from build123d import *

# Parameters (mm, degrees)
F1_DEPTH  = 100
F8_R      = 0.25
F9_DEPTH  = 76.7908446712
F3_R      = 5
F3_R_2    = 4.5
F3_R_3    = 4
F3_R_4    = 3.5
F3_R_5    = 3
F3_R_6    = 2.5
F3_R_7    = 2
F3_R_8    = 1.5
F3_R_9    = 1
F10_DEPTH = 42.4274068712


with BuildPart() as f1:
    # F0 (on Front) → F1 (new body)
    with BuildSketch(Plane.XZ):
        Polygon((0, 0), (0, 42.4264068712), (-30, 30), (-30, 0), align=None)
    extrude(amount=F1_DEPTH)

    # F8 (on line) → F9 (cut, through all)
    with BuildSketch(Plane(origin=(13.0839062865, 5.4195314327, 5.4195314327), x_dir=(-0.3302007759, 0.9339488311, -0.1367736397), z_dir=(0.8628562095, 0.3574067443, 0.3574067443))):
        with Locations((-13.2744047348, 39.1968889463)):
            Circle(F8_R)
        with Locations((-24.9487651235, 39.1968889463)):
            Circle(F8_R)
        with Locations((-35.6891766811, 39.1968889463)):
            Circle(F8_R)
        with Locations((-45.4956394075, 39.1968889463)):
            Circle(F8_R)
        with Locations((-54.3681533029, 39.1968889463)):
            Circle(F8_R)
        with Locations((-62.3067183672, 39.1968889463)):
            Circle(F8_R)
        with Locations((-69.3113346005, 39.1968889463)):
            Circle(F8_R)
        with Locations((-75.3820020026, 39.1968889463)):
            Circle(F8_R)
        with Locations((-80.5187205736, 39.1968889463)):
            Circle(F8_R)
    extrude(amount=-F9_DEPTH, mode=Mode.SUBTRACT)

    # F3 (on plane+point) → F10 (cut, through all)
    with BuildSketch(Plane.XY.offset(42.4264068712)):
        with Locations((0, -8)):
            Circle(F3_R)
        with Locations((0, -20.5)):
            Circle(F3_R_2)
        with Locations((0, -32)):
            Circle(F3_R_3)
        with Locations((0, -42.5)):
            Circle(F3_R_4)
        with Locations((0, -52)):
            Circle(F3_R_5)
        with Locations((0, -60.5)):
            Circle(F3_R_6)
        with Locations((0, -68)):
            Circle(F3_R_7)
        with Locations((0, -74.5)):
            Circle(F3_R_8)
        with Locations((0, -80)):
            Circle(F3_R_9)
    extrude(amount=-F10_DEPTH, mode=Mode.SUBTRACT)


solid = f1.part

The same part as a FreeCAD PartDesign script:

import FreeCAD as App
import Part
import Sketcher
Q = App.Units.Quantity


def add_polygon(sketch, points):
    """Adds a closed chain of lines whose ends are joined by coincident constraints."""
    first, n = sketch.GeometryCount, len(points)
    for a, b in zip(points, points[1:] + points[:1]):
        sketch.addGeometry(Part.LineSegment(App.Vector(*a, 0), App.Vector(*b, 0)), False)
    for i in range(n):
        sketch.addConstraint(Sketcher.Constraint("Coincident", first + i, 2, first + (i + 1) % n, 1))

doc = App.newDocument("Part")
params = doc.addObject("Spreadsheet::Sheet", "Params")
for row, (alias, value) in enumerate([
    ("sketch1_width", "30 mm"),
    ("pad1_length", "100 mm"),
    ("sketch2_diameter", "0.5 mm"),
    ("sketch3_diameter", "10 mm"),
    ("sketch3_diameter2", "9 mm"),
    ("sketch3_diameter3", "8 mm"),
    ("sketch3_diameter4", "7 mm"),
    ("sketch3_diameter5", "6 mm"),
], start=1):
    params.set(f"A{row}", alias)
    params.set(f"B{row}", "=" + value)
    params.setAlias(f"B{row}", alias)

body = doc.addObject("PartDesign::Body", "Body")

sketch1 = doc.addObject("Sketcher::SketchObject", "Sketch")
body.addObject(sketch1)
sketch1.AttachmentSupport = (doc.XZ_Plane, [""])
sketch1.MapMode = "FlatFace"
add_polygon(sketch1, [(0, 0), (0, 42.426407), (-30, 30), (-30, 0)])
sketch1.addConstraint([
    Sketcher.Constraint("Vertical", 0),
    Sketcher.Constraint("Vertical", 2),
    Sketcher.Constraint("Horizontal", 3),
    Sketcher.Constraint("Coincident", 3, 2, -1, 1),
    Sketcher.Constraint("Equal", 3, 2),
    Sketcher.Constraint("DistanceX", 3, 1, 3, 2, Q("30 mm")),
    Sketcher.Constraint("Angle", 1, Q("-157.5 deg")),
])
sketch1.setExpression("Constraints[9]", "Params.sketch1_width")
pad1 = doc.addObject("PartDesign::Pad", "Pad")
body.addObject(pad1)
pad1.Profile = sketch1
pad1.setExpression("Length", "Params.pad1_length")

sketch2 = doc.addObject("Sketcher::SketchObject", "Sketch001")
body.addObject(sketch2)
sketch2.Placement = App.Placement(App.Vector(13.083906, 5.419531, 5.419531), App.Rotation(App.Vector(-0.330200776, 0.933948831, -0.13677364), App.Vector(-0.382683432, 0, 0.923879532), App.Vector(0.862856209, 0.357406744, 0.357406744), "ZXY"))
sketch2.addGeometry([
    Part.Circle(App.Vector(-13.274405, 39.196889, 0), App.Vector(0, 0, 1), 0.25),
    Part.Circle(App.Vector(-24.948765, 39.196889, 0), App.Vector(0, 0, 1), 0.25),
    Part.Circle(App.Vector(-35.689177, 39.196889, 0), App.Vector(0, 0, 1), 0.25),
    Part.Circle(App.Vector(-45.495639, 39.196889, 0), App.Vector(0, 0, 1), 0.25),
    Part.Circle(App.Vector(-54.368153, 39.196889, 0), App.Vector(0, 0, 1), 0.25),
    Part.Circle(App.Vector(-62.306718, 39.196889, 0), App.Vector(0, 0, 1), 0.25),
    Part.Circle(App.Vector(-69.311335, 39.196889, 0), App.Vector(0, 0, 1), 0.25),
    Part.Circle(App.Vector(-75.382002, 39.196889, 0), App.Vector(0, 0, 1), 0.25),
    Part.Circle(App.Vector(-80.518721, 39.196889, 0), App.Vector(0, 0, 1), 0.25),
], False)
sketch2.addConstraint([
    Sketcher.Constraint("Equal", 0, 1),
    Sketcher.Constraint("Equal", 1, 2),
    Sketcher.Constraint("Equal", 2, 3),
    Sketcher.Constraint("Equal", 3, 4),
    Sketcher.Constraint("Equal", 4, 5),
    Sketcher.Constraint("Equal", 5, 6),
    Sketcher.Constraint("Equal", 6, 7),
    Sketcher.Constraint("Equal", 7, 8),
    Sketcher.Constraint("Horizontal", 0, 3, 1, 3),
    Sketcher.Constraint("Horizontal", 1, 3, 2, 3),
    Sketcher.Constraint("Horizontal", 2, 3, 3, 3),
    Sketcher.Constraint("Horizontal", 3, 3, 4, 3),
    Sketcher.Constraint("Horizontal", 4, 3, 5, 3),
    Sketcher.Constraint("Horizontal", 5, 3, 6, 3),
    Sketcher.Constraint("Horizontal", 6, 3, 7, 3),
    Sketcher.Constraint("Horizontal", 7, 3, 8, 3),
    Sketcher.Constraint("Diameter", 0, Q("0.5 mm")),
    Sketcher.Constraint("DistanceY", -1, 1, 0, 3, Q("39.196889 mm")),
    Sketcher.Constraint("DistanceX", 3, 3, -1, 1, Q("45.495639 mm")),
    Sketcher.Constraint("DistanceX", 5, 3, -1, 1, Q("62.306718 mm")),
    Sketcher.Constraint("DistanceX", 8, 3, -1, 1, Q("80.518721 mm")),
    Sketcher.Constraint("DistanceX", 1, 3, 0, 3, Q("11.67436 mm")),
    Sketcher.Constraint("DistanceX", 2, 3, 1, 3, Q("10.740412 mm")),
    Sketcher.Constraint("DistanceX", 4, 3, 1, 3, Q("29.419388 mm")),
    Sketcher.Constraint("DistanceX", 5, 3, 2, 3, Q("26.617542 mm")),
    Sketcher.Constraint("DistanceX", 6, 3, 4, 3, Q("14.943181 mm")),
    Sketcher.Constraint("DistanceX", 7, 3, 4, 3, Q("21.013849 mm")),
])
sketch2.setExpression("Constraints[16]", "Params.sketch2_diameter")
pocket1 = doc.addObject("PartDesign::Pocket", "Pocket")
body.addObject(pocket1)
pocket1.Profile = sketch2
pocket1.Type = "ThroughAll"

sketch3 = doc.addObject("Sketcher::SketchObject", "Sketch002")
body.addObject(sketch3)
sketch3.AttachmentSupport = (doc.XY_Plane, [""])
sketch3.MapMode = "FlatFace"
sketch3.AttachmentOffset = App.Placement(App.Vector(0, 0, 42.426407), App.Rotation())
sketch3.addGeometry([
    Part.Circle(App.Vector(0, -8, 0), App.Vector(0, 0, 1), 5),
    Part.Circle(App.Vector(0, -20.5, 0), App.Vector(0, 0, 1), 4.5),
    Part.Circle(App.Vector(0, -32, 0), App.Vector(0, 0, 1), 4),
    Part.Circle(App.Vector(0, -42.5, 0), App.Vector(0, 0, 1), 3.5),
    Part.Circle(App.Vector(0, -52, 0), App.Vector(0, 0, 1), 3),
    Part.Circle(App.Vector(0, -60.5, 0), App.Vector(0, 0, 1), 2.5),
    Part.Circle(App.Vector(0, -68, 0), App.Vector(0, 0, 1), 2),
    Part.Circle(App.Vector(0, -74.5, 0), App.Vector(0, 0, 1), 1.5),
    Part.Circle(App.Vector(0, -80, 0), App.Vector(0, 0, 1), 1),
], False)
sketch3.addConstraint([
    Sketcher.Constraint("PointOnObject", 0, 3, -2),
    Sketcher.Constraint("PointOnObject", 1, 3, -2),
    Sketcher.Constraint("PointOnObject", 2, 3, -2),
    Sketcher.Constraint("PointOnObject", 3, 3, -2),
    Sketcher.Constraint("PointOnObject", 4, 3, -2),
    Sketcher.Constraint("PointOnObject", 5, 3, -2),
    Sketcher.Constraint("PointOnObject", 6, 3, -2),
    Sketcher.Constraint("PointOnObject", 7, 3, -2),
    Sketcher.Constraint("PointOnObject", 8, 3, -2),
    Sketcher.Constraint("Diameter", 0, Q("10 mm")),
    Sketcher.Constraint("Diameter", 1, Q("9 mm")),
    Sketcher.Constraint("Diameter", 2, Q("8 mm")),
    Sketcher.Constraint("Diameter", 3, Q("7 mm")),
    Sketcher.Constraint("Diameter", 4, Q("6 mm")),
    Sketcher.Constraint("Diameter", 5, Q("5 mm")),
    Sketcher.Constraint("Diameter", 6, Q("4 mm")),
    Sketcher.Constraint("Diameter", 7, Q("3 mm")),
    Sketcher.Constraint("Diameter", 8, Q("2 mm")),
    Sketcher.Constraint("DistanceY", 0, 3, -1, 1, Q("8 mm")),
    Sketcher.Constraint("DistanceY", 2, 3, -1, 1, Q("32 mm")),
    Sketcher.Constraint("DistanceY", 4, 3, -1, 1, Q("52 mm")),
    Sketcher.Constraint("DistanceY", 6, 3, -1, 1, Q("68 mm")),
    Sketcher.Constraint("DistanceY", 8, 3, -1, 1, Q("80 mm")),
    Sketcher.Constraint("DistanceY", 3, 3, 1, 3, Q("22 mm")),
    Sketcher.Constraint("DistanceY", 5, 3, 3, 3, Q("18 mm")),
    Sketcher.Constraint("DistanceY", 7, 3, 5, 3, Q("14 mm")),
    Sketcher.Constraint("DistanceY", 1, 3, -1, 1, Q("20.5 mm")),
])
sketch3.setExpression("Constraints[9]", "Params.sketch3_diameter")
sketch3.setExpression("Constraints[10]", "Params.sketch3_diameter2")
sketch3.setExpression("Constraints[11]", "Params.sketch3_diameter3")
sketch3.setExpression("Constraints[12]", "Params.sketch3_diameter4")
sketch3.setExpression("Constraints[13]", "Params.sketch3_diameter5")
pocket2 = doc.addObject("PartDesign::Pocket", "Pocket001")
body.addObject(pocket2)
pocket2.Profile = sketch3
pocket2.Type = "ThroughAll"

doc.recompute()
